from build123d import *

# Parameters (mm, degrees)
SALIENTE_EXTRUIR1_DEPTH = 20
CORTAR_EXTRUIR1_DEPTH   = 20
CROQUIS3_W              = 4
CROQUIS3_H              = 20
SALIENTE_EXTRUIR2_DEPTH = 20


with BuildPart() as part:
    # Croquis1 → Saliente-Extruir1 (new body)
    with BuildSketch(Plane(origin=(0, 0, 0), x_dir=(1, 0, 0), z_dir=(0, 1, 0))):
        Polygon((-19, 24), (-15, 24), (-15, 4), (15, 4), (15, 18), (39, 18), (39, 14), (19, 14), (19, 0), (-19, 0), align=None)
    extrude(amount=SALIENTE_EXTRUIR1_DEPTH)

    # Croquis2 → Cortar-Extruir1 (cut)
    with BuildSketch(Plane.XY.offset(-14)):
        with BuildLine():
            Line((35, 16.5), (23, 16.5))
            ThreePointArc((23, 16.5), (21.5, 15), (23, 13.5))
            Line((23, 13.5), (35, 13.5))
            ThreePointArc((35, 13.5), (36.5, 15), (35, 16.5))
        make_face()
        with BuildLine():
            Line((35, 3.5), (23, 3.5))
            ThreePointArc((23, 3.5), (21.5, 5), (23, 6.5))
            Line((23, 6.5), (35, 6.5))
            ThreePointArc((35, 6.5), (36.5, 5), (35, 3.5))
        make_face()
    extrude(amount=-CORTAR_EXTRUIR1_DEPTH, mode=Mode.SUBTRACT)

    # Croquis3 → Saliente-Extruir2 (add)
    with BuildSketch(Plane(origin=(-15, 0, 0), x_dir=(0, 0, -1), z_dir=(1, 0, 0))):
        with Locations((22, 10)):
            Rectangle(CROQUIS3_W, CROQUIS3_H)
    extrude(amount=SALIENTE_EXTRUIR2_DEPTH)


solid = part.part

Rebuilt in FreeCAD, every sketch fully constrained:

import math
import FreeCAD as App
import Part
import Sketcher

V = App.Vector

doc = App.newDocument("Part")
params = doc.addObject("Spreadsheet::Sheet", "Params")
for row, (alias, value) in enumerate([
    ("sketch1_width", "4 mm"),
    ("sketch1_width2", "38 mm"),
    ("sketch1_width3", "20 mm"),
    ("sketch1_height", "14 mm"),
    ("pad1_length", "20 mm"),
    ("sketch2_radius", "1.5 mm"),
    ("sketch2_width", "12 mm"),
    ("pocket1_length", "20 mm"),
    ("sketch3_width", "20 mm"),
    ("sketch3_height", "4 mm"),
    ("pad2_length", "20 mm"),
], start=1):
    params.set(f"A{row}", alias)
    params.set(f"B{row}", "=" + value)
    params.setAlias(f"B{row}", alias)

body = doc.addObject("PartDesign::Body", "Body")

# Sketch on XZ plane
sketch1 = doc.addObject("Sketcher::SketchObject", "Sketch")
body.addObject(sketch1)
sketch1.AttachmentSupport = (doc.XZ_Plane, [""])
sketch1.MapMode = "FlatFace"
sketch1.addGeometry(Part.LineSegment(V(-15, -24, 0), V(-19, -24, 0)), False)
sketch1.addGeometry(Part.LineSegment(V(-19, -24, 0), V(-19, 0, 0)), False)
sketch1.addGeometry(Part.LineSegment(V(-19, 0, 0), V(19, 0, 0)), False)
sketch1.addGeometry(Part.LineSegment(V(19, 0, 0), V(19, -14, 0)), False)
sketch1.addGeometry(Part.LineSegment(V(19, -14, 0), V(39, -14, 0)), False)
sketch1.addGeometry(Part.LineSegment(V(39, -14, 0), V(39, -18, 0)), False)
sketch1.addGeometry(Part.LineSegment(V(39, -18, 0), V(15, -18, 0)), False)
sketch1.addGeometry(Part.LineSegment(V(15, -18, 0), V(15, -4, 0)), False)
sketch1.addGeometry(Part.LineSegment(V(15, -4, 0), V(-15, -4, 0)), False)
sketch1.addGeometry(Part.LineSegment(V(-15, -4, 0), V(-15, -24, 0)), False)
sketch1.addConstraint(Sketcher.Constraint("Coincident", 0, 2, 1, 1))
sketch1.addConstraint(Sketcher.Constraint("Coincident", 1, 2, 2, 1))
sketch1.addConstraint(Sketcher.Constraint("Coincident", 2, 2, 3, 1))
sketch1.addConstraint(Sketcher.Constraint("Coincident", 3, 2, 4, 1))
sketch1.addConstraint(Sketcher.Constraint("Coincident", 4, 2, 5, 1))
sketch1.addConstraint(Sketcher.Constraint("Coincident", 5, 2, 6, 1))
sketch1.addConstraint(Sketcher.Constraint("Coincident", 6, 2, 7, 1))
sketch1.addConstraint(Sketcher.Constraint("Coincident", 7, 2, 8, 1))
sketch1.addConstraint(Sketcher.Constraint("Coincident", 8, 2, 9, 1))
sketch1.addConstraint(Sketcher.Constraint("Coincident", 9, 2, 0, 1))
sketch1.addConstraint(Sketcher.Constraint("Horizontal", 0))
sketch1.addConstraint(Sketcher.Constraint("Vertical", 1))
sketch1.addConstraint(Sketcher.Constraint("Horizontal", 2))
sketch1.addConstraint(Sketcher.Constraint("Vertical", 3))
sketch1.addConstraint(Sketcher.Constraint("Horizontal", 4))
sketch1.addConstraint(Sketcher.Constraint("Vertical", 5))
sketch1.addConstraint(Sketcher.Constraint("Horizontal", 6))
sketch1.addConstraint(Sketcher.Constraint("Vertical", 7))
sketch1.addConstraint(Sketcher.Constraint("Horizontal", 8))
sketch1.addConstraint(Sketcher.Constraint("Vertical", 9))
sketch1.addConstraint(Sketcher.Constraint("Symmetric", 1, 2, 2, 2, -1, 1))
sketch1.addConstraint(Sketcher.Constraint("Equal", 6, 1))
sketch1.addConstraint(Sketcher.Constraint("Equal", 0, 5))
sketch1.addConstraint(Sketcher.Constraint("Equal", 3, 7))
sketch1.addConstraint(Sketcher.Constraint("Equal", 4, 9))
sketch1.addConstraint(Sketcher.Constraint("DistanceX", 0, 2, 0, 1, 4.0))
sketch1.addConstraint(Sketcher.Constraint("DistanceX", 2, 1, 2, 2, 38.0))
sketch1.addConstraint(Sketcher.Constraint("DistanceX", 4, 1, 4, 2, 20.0))
sketch1.addConstraint(Sketcher.Constraint("DistanceY", 3, 2, 3, 1, 14.0))
sketch1.setExpression("Constraints[25]", "Params.sketch1_width")
sketch1.setExpression("Constraints[26]", "Params.sketch1_width2")
sketch1.setExpression("Constraints[27]", "Params.sketch1_width3")
sketch1.setExpression("Constraints[28]", "Params.sketch1_height")
pad1 = doc.addObject("PartDesign::Pad", "Pad")
body.addObject(pad1)
pad1.Profile = sketch1
pad1.setExpression("Length", "Params.pad1_length")
pad1.Reversed = True

# Sketch on XY plane
sketch2 = doc.addObject("Sketcher::SketchObject", "Sketch001")
body.addObject(sketch2)
sketch2.AttachmentSupport = (doc.XY_Plane, [""])
sketch2.MapMode = "FlatFace"
sketch2.AttachmentOffset = App.Placement(V(0, 0, -14), App.Rotation())
sketch2.addGeometry(Part.LineSegment(V(35, 16.5, 0), V(23, 16.5, 0)), False)
sketch2.addGeometry(Part.ArcOfCircle(Part.Circle(V(23, 15, 0), V(0, 0, 1), 1.5), math.radians(90), math.radians(270)), False)
sketch2.addGeometry(Part.LineSegment(V(23, 13.5, 0), V(35, 13.5, 0)), False)
sketch2.addGeometry(Part.ArcOfCircle(Part.Circle(V(35, 15, 0), V(0, 0, 1), 1.5), math.radians(-90), math.radians(90)), False)
sketch2.addGeometry(Part.LineSegment(V(23, 3.5, 0), V(35, 3.5, 0)), False)
sketch2.addGeometry(Part.ArcOfCircle(Part.Circle(V(35, 5, 0), V(0, 0, 1), 1.5), math.radians(-90), math.radians(90)), False)
sketch2.addGeometry(Part.LineSegment(V(35, 6.5, 0), V(23, 6.5, 0)), False)
sketch2.addGeometry(Part.ArcOfCircle(Part.Circle(V(23, 5, 0), V(0, 0, 1), 1.5), math.radians(90), math.radians(270)), False)
sketch2.addConstraint(Sketcher.Constraint("Tangent", 0, 2, 1, 1))
sketch2.addConstraint(Sketcher.Constraint("Tangent", 1, 2, 2, 1))
sketch2.addConstraint(Sketcher.Constraint("Tangent", 2, 2, 3, 1))
sketch2.addConstraint(Sketcher.Constraint("Tangent", 3, 2, 0, 1))
sketch2.addConstraint(Sketcher.Constraint("Tangent", 4, 2, 5, 1))
sketch2.addConstraint(Sketcher.Constraint("Tangent", 5, 2, 6, 1))
sketch2.addConstraint(Sketcher.Constraint("Tangent", 6, 2, 7, 1))
sketch2.addConstraint(Sketcher.Constraint("Tangent", 7, 2, 4, 1))
sketch2.addConstraint(Sketcher.Constraint("Horizontal", 0))
sketch2.addConstraint(Sketcher.Constraint("Horizontal", 2))
sketch2.addConstraint(Sketcher.Constraint("Horizontal", 4))
sketch2.addConstraint(Sketcher.Constraint("Horizontal", 6))
sketch2.addConstraint(Sketcher.Constraint("Equal", 3, 5))
sketch2.addConstraint(Sketcher.Constraint("Vertical", 3, 3, 5, 3))
sketch2.addConstraint(Sketcher.Constraint("Vertical", 1, 3, 7, 3))
sketch2.addConstraint(Sketcher.Constraint("Radius", 1, 1.5))
sketch2.addConstraint(Sketcher.Constraint("DistanceX", 0, 2, 0, 1, 12.0))
sketch2.addConstraint(Sketcher.Constraint("DistanceX", -1, 1, 1, 3, 23.0))
sketch2.addConstraint(Sketcher.Constraint("DistanceY", -1, 1, 1, 3, 15.0))
sketch2.addConstraint(Sketcher.Constraint("DistanceY", -1, 1, 5, 3, 5.0))
sketch2.setExpression("Constraints[15]", "Params.sketch2_radius")
sketch2.setExpression("Constraints[16]", "Params.sketch2_width")
pocket1 = doc.addObject("PartDesign::Pocket", "Pocket")
body.addObject(pocket1)
pocket1.Profile = sketch2
pocket1.setExpression("Length", "Params.pocket1_length")

# Sketch on YZ plane
sketch3 = doc.addObject("Sketcher::SketchObject", "Sketch002")
body.addObject(sketch3)
sketch3.AttachmentSupport = (doc.YZ_Plane, [""])
sketch3.MapMode = "FlatFace"
sketch3.AttachmentOffset = App.Placement(V(0, 0, -15), App.Rotation())
sketch3.addGeometry(Part.LineSegment(V(20, -20, 0), V(0, -20, 0)), False)
sketch3.addGeometry(Part.LineSegment(V(0, -20, 0), V(0, -24, 0)), False)
sketch3.addGeometry(Part.LineSegment(V(0, -24, 0), V(20, -24, 0)), False)
sketch3.addGeometry(Part.LineSegment(V(20, -24, 0), V(20, -20, 0)), False)
sketch3.addConstraint(Sketcher.Constraint("Coincident", 0, 2, 1, 1))
sketch3.addConstraint(Sketcher.Constraint("Coincident", 1, 2, 2, 1))
sketch3.addConstraint(Sketcher.Constraint("Coincident", 2, 2, 3, 1))
sketch3.addConstraint(Sketcher.Constraint("Coincident", 3, 2, 0, 1))
sketch3.addConstraint(Sketcher.Constraint("Horizontal", 0))
sketch3.addConstraint(Sketcher.Constraint("Vertical", 1))
sketch3.addConstraint(Sketcher.Constraint("Horizontal", 2))
sketch3.addConstraint(Sketcher.Constraint("Vertical", 3))
sketch3.addConstraint(Sketcher.Constraint("PointOnObject", 0, 2, -2))
sketch3.addConstraint(Sketcher.Constraint("DistanceX", 0, 2, 0, 1, 20.0))
sketch3.addConstraint(Sketcher.Constraint("DistanceY", 1, 2, 1, 1, 4.0))
sketch3.addConstraint(Sketcher.Constraint("DistanceY", 0, 2, -1, 1, 20.0))
sketch3.setExpression("Constraints[9]", "Params.sketch3_width")
sketch3.setExpression("Constraints[10]", "Params.sketch3_height")
pad2 = doc.addObject("PartDesign::Pad", "Pad001")
body.addObject(pad2)
pad2.Profile = sketch3
pad2.setExpression("Length", "Params.pad2_length")

doc.recompute()
